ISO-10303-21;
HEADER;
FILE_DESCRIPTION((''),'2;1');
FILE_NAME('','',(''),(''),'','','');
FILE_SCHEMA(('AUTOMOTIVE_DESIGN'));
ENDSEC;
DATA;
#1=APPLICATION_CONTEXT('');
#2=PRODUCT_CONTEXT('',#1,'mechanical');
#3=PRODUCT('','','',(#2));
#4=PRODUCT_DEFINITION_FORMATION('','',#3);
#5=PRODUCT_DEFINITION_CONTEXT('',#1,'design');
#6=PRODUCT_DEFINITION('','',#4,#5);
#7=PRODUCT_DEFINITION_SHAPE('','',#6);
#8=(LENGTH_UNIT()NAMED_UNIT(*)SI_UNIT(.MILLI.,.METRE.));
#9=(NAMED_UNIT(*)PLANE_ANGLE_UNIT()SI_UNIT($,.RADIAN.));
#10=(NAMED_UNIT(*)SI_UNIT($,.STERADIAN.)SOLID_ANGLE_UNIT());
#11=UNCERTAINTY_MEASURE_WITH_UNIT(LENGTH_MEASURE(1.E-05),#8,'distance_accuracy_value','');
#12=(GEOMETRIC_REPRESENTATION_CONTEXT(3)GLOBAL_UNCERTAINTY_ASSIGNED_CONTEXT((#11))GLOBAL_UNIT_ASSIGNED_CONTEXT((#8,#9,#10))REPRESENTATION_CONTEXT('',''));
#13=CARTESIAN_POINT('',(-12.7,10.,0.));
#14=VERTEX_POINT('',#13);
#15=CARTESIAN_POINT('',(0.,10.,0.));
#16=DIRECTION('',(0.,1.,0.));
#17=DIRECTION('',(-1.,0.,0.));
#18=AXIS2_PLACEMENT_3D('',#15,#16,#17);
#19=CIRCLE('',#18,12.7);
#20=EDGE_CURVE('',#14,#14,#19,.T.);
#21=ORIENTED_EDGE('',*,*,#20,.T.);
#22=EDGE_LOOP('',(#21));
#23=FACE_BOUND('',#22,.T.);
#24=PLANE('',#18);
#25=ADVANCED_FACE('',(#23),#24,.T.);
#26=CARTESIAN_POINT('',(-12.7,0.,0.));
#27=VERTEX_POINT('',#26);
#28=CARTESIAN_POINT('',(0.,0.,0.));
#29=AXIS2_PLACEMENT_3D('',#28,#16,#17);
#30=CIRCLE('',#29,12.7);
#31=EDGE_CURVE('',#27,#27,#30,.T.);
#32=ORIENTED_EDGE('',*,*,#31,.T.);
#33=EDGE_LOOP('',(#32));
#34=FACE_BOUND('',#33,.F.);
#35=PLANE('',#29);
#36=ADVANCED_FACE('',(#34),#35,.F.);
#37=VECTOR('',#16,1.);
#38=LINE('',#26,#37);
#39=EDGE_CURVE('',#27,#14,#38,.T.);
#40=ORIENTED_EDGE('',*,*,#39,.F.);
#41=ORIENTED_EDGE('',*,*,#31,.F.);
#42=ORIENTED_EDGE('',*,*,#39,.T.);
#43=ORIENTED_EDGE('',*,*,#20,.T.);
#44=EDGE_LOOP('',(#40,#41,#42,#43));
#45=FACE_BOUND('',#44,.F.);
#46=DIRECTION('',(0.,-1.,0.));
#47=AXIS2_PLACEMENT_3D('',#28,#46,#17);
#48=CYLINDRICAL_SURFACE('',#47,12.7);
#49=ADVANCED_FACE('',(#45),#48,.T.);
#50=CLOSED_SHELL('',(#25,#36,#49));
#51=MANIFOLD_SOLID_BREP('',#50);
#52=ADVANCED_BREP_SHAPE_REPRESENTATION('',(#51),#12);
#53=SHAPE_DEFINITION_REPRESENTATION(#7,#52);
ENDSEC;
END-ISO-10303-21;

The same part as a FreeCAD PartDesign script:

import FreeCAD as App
import Part
import Sketcher

V = App.Vector
Q = App.Units.Quantity

doc = App.newDocument("Part")
body = doc.addObject("PartDesign::Body", "Body")

# Sketch on XZ plane
sketch1 = body.newObject("Sketcher::SketchObject", "Sketch")
sketch1.AttachmentSupport = (doc.getObject("XZ_Plane"), [""])
sketch1.MapMode = "FlatFace"
sketch1.addGeometry(Part.Circle(V(0, 0, 0), V(0, 0, 1), 13), False)
sketch1.addConstraint([
    Sketcher.Constraint("Coincident", 0, 3, -1, 1),
    Sketcher.Constraint("Diameter", 0, Q("1 in")),
])
pad1 = body.newObject("PartDesign::Pad", "Pad")
pad1.Profile = sketch1
pad1.Length = Q("0.3937008 in")
pad1.Reversed = True

doc.recompute()
